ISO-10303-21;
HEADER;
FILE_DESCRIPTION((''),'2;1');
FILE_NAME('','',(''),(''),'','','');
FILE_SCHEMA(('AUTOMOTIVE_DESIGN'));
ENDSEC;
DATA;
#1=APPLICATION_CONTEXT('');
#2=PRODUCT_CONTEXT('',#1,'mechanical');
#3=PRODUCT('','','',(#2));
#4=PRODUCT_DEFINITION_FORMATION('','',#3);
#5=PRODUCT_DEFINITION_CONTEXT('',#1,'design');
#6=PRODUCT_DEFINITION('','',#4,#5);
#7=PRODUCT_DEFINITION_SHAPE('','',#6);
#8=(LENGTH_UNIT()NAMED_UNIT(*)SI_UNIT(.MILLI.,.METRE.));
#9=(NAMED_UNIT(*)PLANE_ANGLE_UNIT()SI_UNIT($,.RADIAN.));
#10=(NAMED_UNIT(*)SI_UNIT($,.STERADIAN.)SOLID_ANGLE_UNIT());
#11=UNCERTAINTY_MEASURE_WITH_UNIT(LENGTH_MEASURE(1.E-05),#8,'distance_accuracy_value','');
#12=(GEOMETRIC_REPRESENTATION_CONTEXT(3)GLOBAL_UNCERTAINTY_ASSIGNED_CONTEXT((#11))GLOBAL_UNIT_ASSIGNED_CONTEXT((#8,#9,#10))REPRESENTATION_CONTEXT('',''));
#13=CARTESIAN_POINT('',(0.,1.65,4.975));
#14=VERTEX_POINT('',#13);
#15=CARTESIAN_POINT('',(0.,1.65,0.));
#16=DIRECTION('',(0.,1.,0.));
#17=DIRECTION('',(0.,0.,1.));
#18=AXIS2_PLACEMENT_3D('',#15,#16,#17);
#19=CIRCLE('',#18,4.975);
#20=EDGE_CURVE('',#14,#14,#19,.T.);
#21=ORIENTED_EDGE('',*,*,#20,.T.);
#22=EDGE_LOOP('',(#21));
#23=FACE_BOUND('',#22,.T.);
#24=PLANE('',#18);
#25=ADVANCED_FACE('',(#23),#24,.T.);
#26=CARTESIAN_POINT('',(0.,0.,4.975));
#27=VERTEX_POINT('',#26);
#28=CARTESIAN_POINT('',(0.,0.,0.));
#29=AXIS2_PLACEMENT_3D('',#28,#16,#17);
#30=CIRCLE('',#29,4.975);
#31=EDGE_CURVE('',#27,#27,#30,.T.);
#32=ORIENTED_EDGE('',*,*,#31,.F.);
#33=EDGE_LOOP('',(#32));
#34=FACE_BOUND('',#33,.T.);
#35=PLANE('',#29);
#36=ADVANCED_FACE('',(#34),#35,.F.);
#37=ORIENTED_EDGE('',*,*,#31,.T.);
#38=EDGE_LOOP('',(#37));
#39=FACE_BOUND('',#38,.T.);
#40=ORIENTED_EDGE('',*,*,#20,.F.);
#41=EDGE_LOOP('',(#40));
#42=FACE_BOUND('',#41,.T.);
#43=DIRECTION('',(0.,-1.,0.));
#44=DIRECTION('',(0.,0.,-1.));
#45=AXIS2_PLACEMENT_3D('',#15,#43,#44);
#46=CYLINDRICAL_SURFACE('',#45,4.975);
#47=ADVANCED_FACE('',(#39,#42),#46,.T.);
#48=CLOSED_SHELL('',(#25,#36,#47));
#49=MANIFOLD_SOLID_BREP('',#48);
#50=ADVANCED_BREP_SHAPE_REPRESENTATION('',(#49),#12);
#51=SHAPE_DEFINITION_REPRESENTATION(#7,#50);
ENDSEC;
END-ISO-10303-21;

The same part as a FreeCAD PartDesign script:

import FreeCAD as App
import Part
import Sketcher

doc = App.newDocument("Part")
params = doc.addObject("Spreadsheet::Sheet", "Params")
for row, (alias, value) in enumerate([
    ("sketch1_diameter", "9.95 mm"),
    ("pad1_length", "1.65 mm"),
], start=1):
    params.set(f"A{row}", alias)
    params.set(f"B{row}", "=" + value)
    params.setAlias(f"B{row}", alias)

body = doc.addObject("PartDesign::Body", "Body")

sketch1 = body.newObject("Sketcher::SketchObject", "Sketch")
sketch1.AttachmentSupport = (doc.getObject("XZ_Plane"), [""])
sketch1.MapMode = "FlatFace"
sketch1.addGeometry(Part.Circle(App.Vector(0, 0, 0), App.Vector(0, 0, 1), 5), False)
sketch1.addConstraint(Sketcher.Constraint("Coincident", 0, 3, -1, 1))
sketch1.addConstraint(Sketcher.Constraint("Diameter", 0, 9.95))
sketch1.setExpression("Constraints[1]", "Params.sketch1_diameter")
pad1 = body.newObject("PartDesign::Pad", "Pad")
pad1.Profile = sketch1
pad1.setExpression("Length", "Params.pad1_length")
pad1.Reversed = True

doc.recompute()
